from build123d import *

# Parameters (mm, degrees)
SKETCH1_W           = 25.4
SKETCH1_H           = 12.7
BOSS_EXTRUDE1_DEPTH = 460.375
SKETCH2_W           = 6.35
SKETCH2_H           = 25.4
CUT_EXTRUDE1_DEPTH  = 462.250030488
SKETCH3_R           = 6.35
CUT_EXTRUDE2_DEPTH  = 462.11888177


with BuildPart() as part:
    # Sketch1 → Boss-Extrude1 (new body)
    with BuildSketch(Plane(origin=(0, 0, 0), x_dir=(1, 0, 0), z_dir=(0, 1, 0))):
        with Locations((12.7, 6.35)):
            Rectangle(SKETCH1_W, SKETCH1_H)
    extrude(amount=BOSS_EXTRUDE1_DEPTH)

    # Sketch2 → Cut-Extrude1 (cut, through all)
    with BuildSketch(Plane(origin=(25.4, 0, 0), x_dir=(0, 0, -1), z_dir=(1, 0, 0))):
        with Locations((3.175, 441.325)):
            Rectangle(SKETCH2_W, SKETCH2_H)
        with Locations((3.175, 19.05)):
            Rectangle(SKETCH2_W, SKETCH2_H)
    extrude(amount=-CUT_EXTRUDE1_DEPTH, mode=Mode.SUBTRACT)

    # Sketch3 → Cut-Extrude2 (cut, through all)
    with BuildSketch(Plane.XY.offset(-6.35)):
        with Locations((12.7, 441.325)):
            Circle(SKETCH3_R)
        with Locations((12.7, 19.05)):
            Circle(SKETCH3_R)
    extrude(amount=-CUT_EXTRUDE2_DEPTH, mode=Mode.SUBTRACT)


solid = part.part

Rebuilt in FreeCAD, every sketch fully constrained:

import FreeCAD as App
import Part
import Sketcher
Q = App.Units.Quantity


def add_polygon(sketch, points):
    """Adds a closed chain of lines whose ends are joined by coincident constraints."""
    first, n = sketch.GeometryCount, len(points)
    for a, b in zip(points, points[1:] + points[:1]):
        sketch.addGeometry(Part.LineSegment(App.Vector(*a, 0), App.Vector(*b, 0)), False)
    for i in range(n):
        sketch.addConstraint(Sketcher.Constraint("Coincident", first + i, 2, first + (i + 1) % n, 1))

doc = App.newDocument("Part")
body = doc.addObject("PartDesign::Body", "Body")

# Sketch on XZ plane
sketch1 = body.newObject("Sketcher::SketchObject", "Sketch")
sketch1.AttachmentSupport = (doc.getObject("XZ_Plane"), [""])
sketch1.MapMode = "FlatFace"
add_polygon(sketch1, [(0, -13), (0, 0), (25, 0), (25, -13)])  # lines 0-3
sketch1.addConstraint([
    Sketcher.Constraint("Vertical", 0),
    Sketcher.Constraint("Horizontal", 1),
    Sketcher.Constraint("Vertical", 2),
    Sketcher.Constraint("Horizontal", 3),
    Sketcher.Constraint("Coincident", 0, 2, -1, 1),
    Sketcher.Constraint("DistanceX", 1, 1, 1, 2, Q("1 in")),
    Sketcher.Constraint("DistanceY", 0, 1, 0, 2, Q("0.5 in")),
])
pad1 = body.newObject("PartDesign::Pad", "Pad")
pad1.Profile = sketch1
pad1.Length = Q("18.125 in")
pad1.Reversed = True

# Sketch on YZ plane
sketch2 = body.newObject("Sketcher::SketchObject", "Sketch001")
sketch2.AttachmentSupport = (doc.getObject("YZ_Plane"), [""])
sketch2.MapMode = "FlatFace"
sketch2.AttachmentOffset = App.Placement(App.Vector(0, 0, 1 * 25.4), App.Rotation())
add_polygon(sketch2, [(454, 0), (429, 0), (429, -6), (454, -6)])  # lines 0-3
add_polygon(sketch2, [(32, 0), (6, 0), (6, -6), (32, -6)])  # lines 4-7
sketch2.addConstraint([
    Sketcher.Constraint("Horizontal", 0),
    Sketcher.Constraint("Vertical", 1),
    Sketcher.Constraint("Horizontal", 2),
    Sketcher.Constraint("Vertical", 3),
    Sketcher.Constraint("Horizontal", 4),
    Sketcher.Constraint("Vertical", 5),
    Sketcher.Constraint("Horizontal", 6),
    Sketcher.Constraint("Vertical", 7),
    Sketcher.Constraint("PointOnObject", 0, 2, -1),
    Sketcher.Constraint("PointOnObject", 4, 2, -1),
    Sketcher.Constraint("Horizontal", 2, 2, 5, 2),
    Sketcher.Constraint("Equal", 2, 4),
    Sketcher.Constraint("DistanceX", 0, 2, 0, 1, Q("1 in")),
    Sketcher.Constraint("DistanceY", 1, 2, 1, 1, Q("0.25 in")),
    Sketcher.Constraint("DistanceX", -1, 1, 4, 2, Q("0.25 in")),
    Sketcher.Constraint("DistanceX", -1, 1, 0, 2, Q("16.875 in")),
])
pocket1 = body.newObject("PartDesign::Pocket", "Pocket")
pocket1.Profile = sketch2
pocket1.Type = "ThroughAll"

# Sketch on XY plane
sketch3 = body.newObject("Sketcher::SketchObject", "Sketch002")
sketch3.AttachmentSupport = (doc.getObject("XY_Plane"), [""])
sketch3.MapMode = "FlatFace"
sketch3.AttachmentOffset = App.Placement(App.Vector(0, 0, -0.25 * 25.4), App.Rotation())
sketch3.addGeometry([
    Part.Circle(App.Vector(13, 441, 0), App.Vector(0, 0, 1), 6),
    Part.Circle(App.Vector(13, 19, 0), App.Vector(0, 0, 1), 6),
], False)
sketch3.addConstraint([
    Sketcher.Constraint("Equal", 0, 1),
    Sketcher.Constraint("Vertical", 0, 3, 1, 3),
    Sketcher.Constraint("Diameter", 0, Q("0.5 in")),
    Sketcher.Constraint("DistanceX", -1, 1, 0, 3, Q("0.5 in")),
    Sketcher.Constraint("DistanceY", -1, 1, 1, 3, Q("0.75 in")),
    Sketcher.Constraint("DistanceY", -1, 1, 0, 3, Q("17.375 in")),
])
pocket2 = body.newObject("PartDesign::Pocket", "Pocket001")
pocket2.Profile = sketch3
pocket2.Type = "ThroughAll"

doc.recompute()
